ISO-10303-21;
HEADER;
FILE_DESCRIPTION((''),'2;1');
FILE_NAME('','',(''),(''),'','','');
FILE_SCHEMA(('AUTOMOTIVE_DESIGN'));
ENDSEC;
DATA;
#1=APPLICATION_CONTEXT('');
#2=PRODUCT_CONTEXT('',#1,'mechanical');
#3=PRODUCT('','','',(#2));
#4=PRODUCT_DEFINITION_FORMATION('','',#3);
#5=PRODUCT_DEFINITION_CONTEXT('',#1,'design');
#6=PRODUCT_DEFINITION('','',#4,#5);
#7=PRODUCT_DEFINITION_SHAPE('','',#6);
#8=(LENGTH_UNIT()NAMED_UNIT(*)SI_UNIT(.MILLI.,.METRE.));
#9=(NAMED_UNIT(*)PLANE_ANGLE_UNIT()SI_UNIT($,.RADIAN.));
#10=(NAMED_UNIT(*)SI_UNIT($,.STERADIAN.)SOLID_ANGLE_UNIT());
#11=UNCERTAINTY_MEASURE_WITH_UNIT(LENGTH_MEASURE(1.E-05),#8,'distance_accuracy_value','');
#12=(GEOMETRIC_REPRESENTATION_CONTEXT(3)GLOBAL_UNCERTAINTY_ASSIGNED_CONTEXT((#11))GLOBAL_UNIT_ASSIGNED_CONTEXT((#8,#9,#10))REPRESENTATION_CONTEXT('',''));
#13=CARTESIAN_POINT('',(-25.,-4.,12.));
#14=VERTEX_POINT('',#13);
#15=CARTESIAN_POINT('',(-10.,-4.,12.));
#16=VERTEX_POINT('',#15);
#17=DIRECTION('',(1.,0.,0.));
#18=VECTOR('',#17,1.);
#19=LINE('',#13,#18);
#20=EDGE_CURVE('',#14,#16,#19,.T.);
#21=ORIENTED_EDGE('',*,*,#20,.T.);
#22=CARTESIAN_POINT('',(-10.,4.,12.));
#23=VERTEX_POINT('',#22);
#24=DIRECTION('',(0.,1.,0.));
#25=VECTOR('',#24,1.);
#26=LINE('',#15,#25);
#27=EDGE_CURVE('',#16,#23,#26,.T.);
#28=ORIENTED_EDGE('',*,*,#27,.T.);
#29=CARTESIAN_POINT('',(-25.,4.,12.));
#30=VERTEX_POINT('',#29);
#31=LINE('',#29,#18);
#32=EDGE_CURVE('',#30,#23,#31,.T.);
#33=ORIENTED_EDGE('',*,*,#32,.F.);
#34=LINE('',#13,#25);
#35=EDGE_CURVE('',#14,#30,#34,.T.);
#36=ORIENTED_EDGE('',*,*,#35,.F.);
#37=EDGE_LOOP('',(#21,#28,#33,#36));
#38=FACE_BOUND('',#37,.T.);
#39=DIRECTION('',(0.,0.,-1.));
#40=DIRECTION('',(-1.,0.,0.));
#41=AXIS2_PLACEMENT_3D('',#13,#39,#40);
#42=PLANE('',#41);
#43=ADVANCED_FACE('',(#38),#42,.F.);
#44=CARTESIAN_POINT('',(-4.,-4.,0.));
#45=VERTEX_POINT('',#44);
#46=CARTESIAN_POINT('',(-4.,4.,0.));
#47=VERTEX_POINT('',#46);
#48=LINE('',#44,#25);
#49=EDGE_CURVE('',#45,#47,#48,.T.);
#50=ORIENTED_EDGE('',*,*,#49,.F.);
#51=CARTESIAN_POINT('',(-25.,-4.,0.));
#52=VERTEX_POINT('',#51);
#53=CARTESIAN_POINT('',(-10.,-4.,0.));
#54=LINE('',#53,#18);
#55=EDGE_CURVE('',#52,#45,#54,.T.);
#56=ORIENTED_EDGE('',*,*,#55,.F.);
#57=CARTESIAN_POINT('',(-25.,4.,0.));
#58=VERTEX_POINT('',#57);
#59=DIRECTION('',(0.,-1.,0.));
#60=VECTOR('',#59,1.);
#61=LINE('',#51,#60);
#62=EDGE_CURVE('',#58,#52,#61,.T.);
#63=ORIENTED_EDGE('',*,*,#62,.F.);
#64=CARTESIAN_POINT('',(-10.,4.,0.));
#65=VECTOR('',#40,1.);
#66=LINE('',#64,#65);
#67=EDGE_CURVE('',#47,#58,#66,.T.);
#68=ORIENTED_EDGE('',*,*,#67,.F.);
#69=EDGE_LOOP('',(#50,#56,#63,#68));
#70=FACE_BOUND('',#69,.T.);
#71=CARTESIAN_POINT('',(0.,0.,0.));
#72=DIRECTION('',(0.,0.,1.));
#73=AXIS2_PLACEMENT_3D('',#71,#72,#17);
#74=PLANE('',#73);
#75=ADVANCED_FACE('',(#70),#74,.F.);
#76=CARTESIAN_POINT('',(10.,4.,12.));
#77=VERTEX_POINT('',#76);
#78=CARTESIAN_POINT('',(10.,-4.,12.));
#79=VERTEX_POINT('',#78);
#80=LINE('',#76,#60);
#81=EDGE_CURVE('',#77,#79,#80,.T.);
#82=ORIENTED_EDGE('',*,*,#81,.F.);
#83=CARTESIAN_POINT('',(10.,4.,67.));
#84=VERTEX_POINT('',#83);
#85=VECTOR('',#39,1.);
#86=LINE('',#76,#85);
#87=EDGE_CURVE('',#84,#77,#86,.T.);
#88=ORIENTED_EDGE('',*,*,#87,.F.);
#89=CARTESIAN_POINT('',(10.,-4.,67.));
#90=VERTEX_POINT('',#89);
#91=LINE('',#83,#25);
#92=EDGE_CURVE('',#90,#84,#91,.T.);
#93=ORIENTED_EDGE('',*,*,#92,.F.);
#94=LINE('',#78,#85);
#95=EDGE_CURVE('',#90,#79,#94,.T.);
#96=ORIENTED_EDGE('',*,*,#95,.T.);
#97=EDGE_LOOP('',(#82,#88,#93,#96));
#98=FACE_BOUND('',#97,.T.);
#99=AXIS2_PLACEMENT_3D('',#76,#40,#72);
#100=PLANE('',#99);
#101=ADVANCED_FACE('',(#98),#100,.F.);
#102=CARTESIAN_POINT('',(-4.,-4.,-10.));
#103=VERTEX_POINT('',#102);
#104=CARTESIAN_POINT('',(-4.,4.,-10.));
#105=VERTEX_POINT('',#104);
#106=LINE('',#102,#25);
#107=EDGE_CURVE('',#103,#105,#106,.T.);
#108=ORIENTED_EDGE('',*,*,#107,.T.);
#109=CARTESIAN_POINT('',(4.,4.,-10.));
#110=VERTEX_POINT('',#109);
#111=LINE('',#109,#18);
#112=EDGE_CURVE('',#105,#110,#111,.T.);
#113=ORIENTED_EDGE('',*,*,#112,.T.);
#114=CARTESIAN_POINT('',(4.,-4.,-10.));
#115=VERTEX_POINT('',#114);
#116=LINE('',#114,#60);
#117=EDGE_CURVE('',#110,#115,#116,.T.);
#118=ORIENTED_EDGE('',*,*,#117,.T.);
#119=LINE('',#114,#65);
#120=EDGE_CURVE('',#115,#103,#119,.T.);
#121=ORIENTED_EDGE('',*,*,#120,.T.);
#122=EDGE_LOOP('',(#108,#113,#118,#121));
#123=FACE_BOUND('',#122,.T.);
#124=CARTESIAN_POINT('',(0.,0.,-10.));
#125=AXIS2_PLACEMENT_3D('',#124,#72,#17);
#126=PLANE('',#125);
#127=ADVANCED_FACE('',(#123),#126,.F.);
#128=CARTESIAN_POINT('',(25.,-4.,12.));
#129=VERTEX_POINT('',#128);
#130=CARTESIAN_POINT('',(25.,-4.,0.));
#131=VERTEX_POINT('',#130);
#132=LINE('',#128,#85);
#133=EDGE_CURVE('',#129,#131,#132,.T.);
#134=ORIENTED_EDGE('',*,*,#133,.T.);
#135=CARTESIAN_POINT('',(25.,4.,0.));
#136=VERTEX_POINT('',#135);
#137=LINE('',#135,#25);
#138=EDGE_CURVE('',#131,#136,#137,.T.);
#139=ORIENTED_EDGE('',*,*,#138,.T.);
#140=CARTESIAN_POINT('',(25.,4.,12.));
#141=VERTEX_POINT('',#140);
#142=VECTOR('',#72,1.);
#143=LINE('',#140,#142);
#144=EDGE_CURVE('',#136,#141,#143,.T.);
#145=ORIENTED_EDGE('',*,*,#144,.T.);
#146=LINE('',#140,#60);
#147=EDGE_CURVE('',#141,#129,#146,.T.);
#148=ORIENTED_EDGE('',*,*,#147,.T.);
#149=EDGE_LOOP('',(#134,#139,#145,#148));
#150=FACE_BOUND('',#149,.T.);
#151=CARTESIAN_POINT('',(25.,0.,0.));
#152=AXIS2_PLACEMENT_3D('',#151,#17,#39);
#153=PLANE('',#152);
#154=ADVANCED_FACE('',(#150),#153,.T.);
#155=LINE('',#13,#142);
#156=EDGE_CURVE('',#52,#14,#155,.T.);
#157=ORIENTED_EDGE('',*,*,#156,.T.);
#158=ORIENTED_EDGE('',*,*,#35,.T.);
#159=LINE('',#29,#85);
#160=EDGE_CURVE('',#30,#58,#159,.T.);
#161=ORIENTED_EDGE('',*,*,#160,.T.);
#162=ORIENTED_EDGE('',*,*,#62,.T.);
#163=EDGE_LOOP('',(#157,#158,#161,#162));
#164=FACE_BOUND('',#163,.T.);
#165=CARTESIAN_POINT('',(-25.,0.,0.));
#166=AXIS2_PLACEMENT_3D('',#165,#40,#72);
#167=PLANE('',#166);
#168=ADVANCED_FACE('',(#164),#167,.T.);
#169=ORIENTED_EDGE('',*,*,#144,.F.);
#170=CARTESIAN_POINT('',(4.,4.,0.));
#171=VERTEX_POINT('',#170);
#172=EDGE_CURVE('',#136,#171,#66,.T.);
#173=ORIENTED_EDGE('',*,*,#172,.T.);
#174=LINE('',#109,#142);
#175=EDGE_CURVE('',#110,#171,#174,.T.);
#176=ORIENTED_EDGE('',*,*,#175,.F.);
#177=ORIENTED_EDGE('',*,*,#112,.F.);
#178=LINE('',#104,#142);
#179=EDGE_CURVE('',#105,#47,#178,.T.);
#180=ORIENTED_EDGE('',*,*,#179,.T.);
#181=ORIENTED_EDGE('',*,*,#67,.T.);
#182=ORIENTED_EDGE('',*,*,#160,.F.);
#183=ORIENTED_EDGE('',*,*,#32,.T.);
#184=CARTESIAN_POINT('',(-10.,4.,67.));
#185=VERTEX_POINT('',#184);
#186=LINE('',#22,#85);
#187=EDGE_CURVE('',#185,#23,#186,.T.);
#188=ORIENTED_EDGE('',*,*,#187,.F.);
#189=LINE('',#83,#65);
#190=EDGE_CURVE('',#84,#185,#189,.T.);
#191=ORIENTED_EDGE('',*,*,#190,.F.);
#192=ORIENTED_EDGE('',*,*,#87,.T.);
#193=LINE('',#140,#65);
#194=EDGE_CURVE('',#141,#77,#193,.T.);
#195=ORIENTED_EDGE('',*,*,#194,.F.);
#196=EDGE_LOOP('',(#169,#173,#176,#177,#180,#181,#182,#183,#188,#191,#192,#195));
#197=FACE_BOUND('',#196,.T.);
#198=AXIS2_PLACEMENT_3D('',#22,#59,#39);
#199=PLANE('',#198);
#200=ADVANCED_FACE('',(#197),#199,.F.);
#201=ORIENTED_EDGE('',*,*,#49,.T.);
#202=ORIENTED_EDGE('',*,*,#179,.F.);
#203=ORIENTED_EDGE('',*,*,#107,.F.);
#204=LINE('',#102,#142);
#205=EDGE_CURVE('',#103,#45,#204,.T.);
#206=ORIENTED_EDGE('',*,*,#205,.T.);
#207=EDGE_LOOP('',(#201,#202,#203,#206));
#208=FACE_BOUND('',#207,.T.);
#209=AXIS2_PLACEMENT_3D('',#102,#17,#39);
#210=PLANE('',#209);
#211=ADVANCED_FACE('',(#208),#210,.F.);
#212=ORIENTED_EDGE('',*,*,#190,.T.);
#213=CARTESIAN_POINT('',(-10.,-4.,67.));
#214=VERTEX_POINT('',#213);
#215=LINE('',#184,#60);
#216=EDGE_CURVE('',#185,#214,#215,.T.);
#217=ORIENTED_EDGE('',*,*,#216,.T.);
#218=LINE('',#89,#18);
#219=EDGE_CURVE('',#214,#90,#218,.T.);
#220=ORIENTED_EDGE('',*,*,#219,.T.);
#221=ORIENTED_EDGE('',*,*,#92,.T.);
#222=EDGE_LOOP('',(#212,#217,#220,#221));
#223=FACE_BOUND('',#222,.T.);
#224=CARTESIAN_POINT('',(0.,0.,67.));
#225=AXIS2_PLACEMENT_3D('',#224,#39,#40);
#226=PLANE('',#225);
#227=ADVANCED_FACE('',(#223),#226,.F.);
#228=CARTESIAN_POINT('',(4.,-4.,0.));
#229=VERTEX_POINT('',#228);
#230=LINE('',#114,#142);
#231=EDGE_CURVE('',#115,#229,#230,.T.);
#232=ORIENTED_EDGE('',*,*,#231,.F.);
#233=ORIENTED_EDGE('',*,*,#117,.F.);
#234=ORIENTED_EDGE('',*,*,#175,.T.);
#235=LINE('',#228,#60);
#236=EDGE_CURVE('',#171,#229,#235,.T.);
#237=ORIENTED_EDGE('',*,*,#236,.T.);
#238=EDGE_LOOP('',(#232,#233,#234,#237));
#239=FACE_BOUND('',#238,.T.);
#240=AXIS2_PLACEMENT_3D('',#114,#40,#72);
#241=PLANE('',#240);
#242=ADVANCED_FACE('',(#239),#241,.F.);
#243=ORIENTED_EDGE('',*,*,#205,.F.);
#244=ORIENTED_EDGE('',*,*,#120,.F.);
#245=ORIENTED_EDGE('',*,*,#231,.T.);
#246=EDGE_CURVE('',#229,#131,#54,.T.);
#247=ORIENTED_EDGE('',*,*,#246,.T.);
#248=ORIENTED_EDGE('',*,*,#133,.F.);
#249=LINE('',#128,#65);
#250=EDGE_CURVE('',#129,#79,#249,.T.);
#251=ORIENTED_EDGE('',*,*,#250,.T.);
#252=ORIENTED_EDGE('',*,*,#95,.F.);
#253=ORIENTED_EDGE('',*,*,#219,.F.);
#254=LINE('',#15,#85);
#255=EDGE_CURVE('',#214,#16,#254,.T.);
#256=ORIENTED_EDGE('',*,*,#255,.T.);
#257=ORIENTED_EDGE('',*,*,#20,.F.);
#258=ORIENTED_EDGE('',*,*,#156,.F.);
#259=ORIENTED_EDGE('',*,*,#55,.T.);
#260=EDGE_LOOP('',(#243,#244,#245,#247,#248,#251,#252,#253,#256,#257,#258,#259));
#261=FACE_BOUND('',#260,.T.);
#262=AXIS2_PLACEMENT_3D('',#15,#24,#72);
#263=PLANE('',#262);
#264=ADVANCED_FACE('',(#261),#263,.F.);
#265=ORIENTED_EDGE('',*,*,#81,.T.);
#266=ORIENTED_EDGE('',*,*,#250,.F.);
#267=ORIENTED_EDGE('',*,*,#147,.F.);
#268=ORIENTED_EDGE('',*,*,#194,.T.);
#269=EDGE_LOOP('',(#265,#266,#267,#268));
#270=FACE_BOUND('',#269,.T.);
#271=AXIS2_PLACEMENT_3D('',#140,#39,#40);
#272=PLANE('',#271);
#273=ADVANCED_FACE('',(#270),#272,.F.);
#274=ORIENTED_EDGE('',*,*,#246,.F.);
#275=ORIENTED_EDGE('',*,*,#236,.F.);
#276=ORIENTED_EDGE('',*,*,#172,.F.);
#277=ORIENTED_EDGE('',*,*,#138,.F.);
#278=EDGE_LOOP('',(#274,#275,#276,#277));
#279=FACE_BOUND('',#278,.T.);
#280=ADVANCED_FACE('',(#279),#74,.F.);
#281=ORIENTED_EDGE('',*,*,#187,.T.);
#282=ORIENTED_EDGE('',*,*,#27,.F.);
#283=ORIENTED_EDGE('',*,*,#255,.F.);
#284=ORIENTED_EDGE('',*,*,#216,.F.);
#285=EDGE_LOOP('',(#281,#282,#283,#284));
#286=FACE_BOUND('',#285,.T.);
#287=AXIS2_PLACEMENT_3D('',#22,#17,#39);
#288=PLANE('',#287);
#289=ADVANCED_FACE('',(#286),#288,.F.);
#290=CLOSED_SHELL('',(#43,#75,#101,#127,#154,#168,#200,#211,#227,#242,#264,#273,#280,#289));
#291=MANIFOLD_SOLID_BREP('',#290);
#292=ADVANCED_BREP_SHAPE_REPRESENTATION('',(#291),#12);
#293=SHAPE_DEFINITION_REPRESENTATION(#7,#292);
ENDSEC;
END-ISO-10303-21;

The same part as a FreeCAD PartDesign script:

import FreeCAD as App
import Part
import Sketcher

V = App.Vector
Q = App.Units.Quantity

doc = App.newDocument("Part")
body = doc.addObject("PartDesign::Body", "Body")

# Sketch on XY plane
sketch1 = body.newObject("Sketcher::SketchObject", "Sketch")
sketch1.AttachmentSupport = (doc.getObject("XY_Plane"), [""])
sketch1.MapMode = "FlatFace"
sketch1.addGeometry(Part.LineSegment(V(-10, 4, 0), V(-10, -4, 0)), False)
sketch1.addGeometry(Part.LineSegment(V(-10, -4, 0), V(10, -4, 0)), False)
sketch1.addGeometry(Part.LineSegment(V(10, -4, 0), V(10, 4, 0)), False)
sketch1.addGeometry(Part.LineSegment(V(10, 4, 0), V(-10, 4, 0)), False)
sketch1.addConstraint(Sketcher.Constraint("Coincident", 0, 2, 1, 1))
sketch1.addConstraint(Sketcher.Constraint("Coincident", 1, 2, 2, 1))
sketch1.addConstraint(Sketcher.Constraint("Coincident", 2, 2, 3, 1))
sketch1.addConstraint(Sketcher.Constraint("Coincident", 3, 2, 0, 1))
sketch1.addConstraint(Sketcher.Constraint("Vertical", 0))
sketch1.addConstraint(Sketcher.Constraint("Horizontal", 1))
sketch1.addConstraint(Sketcher.Constraint("Vertical", 2))
sketch1.addConstraint(Sketcher.Constraint("Horizontal", 3))
sketch1.addConstraint(Sketcher.Constraint("Symmetric", 0, 2, 2, 2, -1, 1))
sketch1.addConstraint(Sketcher.Constraint("DistanceX", 1, 1, 1, 2, Q("20 mm")))
sketch1.addConstraint(Sketcher.Constraint("DistanceY", 0, 2, 0, 1, Q("8 mm")))
pad1 = body.newObject("PartDesign::Pad", "Pad")
pad1.Profile = sketch1
pad1.Length = 12

# Sketch on XY plane
sketch2 = body.newObject("Sketcher::SketchObject", "Sketch001")
sketch2.AttachmentSupport = (doc.getObject("XY_Plane"), [""])
sketch2.MapMode = "FlatFace"
sketch2.addGeometry(Part.LineSegment(V(4, 4, 0), V(4, -4, 0)), False)
sketch2.addGeometry(Part.LineSegment(V(4, -4, 0), V(-4, -4, 0)), False)
sketch2.addGeometry(Part.LineSegment(V(-4, -4, 0), V(-4, 4, 0)), False)
sketch2.addGeometry(Part.LineSegment(V(-4, 4, 0), V(4, 4, 0)), False)
sketch2.addConstraint(Sketcher.Constraint("Coincident", 0, 2, 1, 1))
sketch2.addConstraint(Sketcher.Constraint("Coincident", 1, 2, 2, 1))
sketch2.addConstraint(Sketcher.Constraint("Coincident", 2, 2, 3, 1))
sketch2.addConstraint(Sketcher.Constraint("Coincident", 3, 2, 0, 1))
sketch2.addConstraint(Sketcher.Constraint("Vertical", 0))
sketch2.addConstraint(Sketcher.Constraint("Horizontal", 1))
sketch2.addConstraint(Sketcher.Constraint("Vertical", 2))
sketch2.addConstraint(Sketcher.Constraint("Horizontal", 3))
sketch2.addConstraint(Sketcher.Constraint("Symmetric", 0, 2, 2, 2, -1, 1))
sketch2.addConstraint(Sketcher.Constraint("Equal", 3, 0))
sketch2.addConstraint(Sketcher.Constraint("DistanceX", 1, 2, 1, 1, Q("8 mm")))
pad2 = body.newObject("PartDesign::Pad", "Pad001")
pad2.Profile = sketch2
pad2.Length = 10
pad2.Reversed = True

# Sketch on XY plane
sketch3 = body.newObject("Sketcher::SketchObject", "Sketch002")
sketch3.AttachmentSupport = (doc.getObject("XY_Plane"), [""])
sketch3.MapMode = "FlatFace"
sketch3.AttachmentOffset = App.Placement(V(0, 0, 12), App.Rotation())
sketch3.addGeometry(Part.LineSegment(V(-10, 4, 0), V(-10, -4, 0)), False)
sketch3.addGeometry(Part.LineSegment(V(-10, -4, 0), V(10, -4, 0)), False)
sketch3.addGeometry(Part.LineSegment(V(10, -4, 0), V(10, 4, 0)), False)
sketch3.addGeometry(Part.LineSegment(V(10, 4, 0), V(-10, 4, 0)), False)
sketch3.addConstraint(Sketcher.Constraint("Coincident", 0, 2, 1, 1))
sketch3.addConstraint(Sketcher.Constraint("Coincident", 1, 2, 2, 1))
sketch3.addConstraint(Sketcher.Constraint("Coincident", 2, 2, 3, 1))
sketch3.addConstraint(Sketcher.Constraint("Coincident", 3, 2, 0, 1))
sketch3.addConstraint(Sketcher.Constraint("Vertical", 0))
sketch3.addConstraint(Sketcher.Constraint("Horizontal", 1))
sketch3.addConstraint(Sketcher.Constraint("Vertical", 2))
sketch3.addConstraint(Sketcher.Constraint("Horizontal", 3))
sketch3.addConstraint(Sketcher.Constraint("Symmetric", 0, 2, 2, 2, -1, 1))
sketch3.addConstraint(Sketcher.Constraint("DistanceX", 1, 1, 1, 2, Q("20 mm")))
sketch3.addConstraint(Sketcher.Constraint("DistanceY", 0, 2, 0, 1, Q("8 mm")))
pad3 = body.newObject("PartDesign::Pad", "Pad002")
pad3.Profile = sketch3
pad3.Length = 55

# Sketch on YZ plane
sketch4 = body.newObject("Sketcher::SketchObject", "Sketch003")
sketch4.AttachmentSupport = (doc.getObject("YZ_Plane"), [""])
sketch4.MapMode = "FlatFace"
sketch4.AttachmentOffset = App.Placement(V(0, 0, 10), App.Rotation())
sketch4.addGeometry(Part.LineSegment(V(4, 12, 0), V(-4, 12, 0)), False)
sketch4.addGeometry(Part.LineSegment(V(-4, 12, 0), V(-4, 0, 0)), False)
sketch4.addGeometry(Part.LineSegment(V(-4, 0, 0), V(4, 0, 0)), False)
sketch4.addGeometry(Part.LineSegment(V(4, 0, 0), V(4, 12, 0)), False)
sketch4.addConstraint(Sketcher.Constraint("Coincident", 0, 2, 1, 1))
sketch4.addConstraint(Sketcher.Constraint("Coincident", 1, 2, 2, 1))
sketch4.addConstraint(Sketcher.Constraint("Coincident", 2, 2, 3, 1))
sketch4.addConstraint(Sketcher.Constraint("Coincident", 3, 2, 0, 1))
sketch4.addConstraint(Sketcher.Constraint("Horizontal", 0))
sketch4.addConstraint(Sketcher.Constraint("Vertical", 1))
sketch4.addConstraint(Sketcher.Constraint("Horizontal", 2))
sketch4.addConstraint(Sketcher.Constraint("Vertical", 3))
sketch4.addConstraint(Sketcher.Constraint("Symmetric", 1, 2, 2, 2, -1, 1))
sketch4.addConstraint(Sketcher.Constraint("DistanceX", 0, 2, 0, 1, Q("8 mm")))
sketch4.addConstraint(Sketcher.Constraint("DistanceY", 1, 2, 1, 1, Q("12 mm")))
pad4 = body.newObject("PartDesign::Pad", "Pad003")
pad4.Profile = sketch4
pad4.Length = 15

# Sketch on YZ plane
sketch5 = body.newObject("Sketcher::SketchObject", "Sketch004")
sketch5.AttachmentSupport = (doc.getObject("YZ_Plane"), [""])
sketch5.MapMode = "FlatFace"
sketch5.AttachmentOffset = App.Placement(V(0, 0, -10), App.Rotation())
sketch5.addGeometry(Part.LineSegment(V(4, 0, 0), V(-4, 0, 0)), False)
sketch5.addGeometry(Part.LineSegment(V(-4, 0, 0), V(-4, 12, 0)), False)
sketch5.addGeometry(Part.LineSegment(V(-4, 12, 0), V(4, 12, 0)), False)
sketch5.addGeometry(Part.LineSegment(V(4, 12, 0), V(4, 0, 0)), False)
sketch5.addConstraint(Sketcher.Constraint("Coincident", 0, 2, 1, 1))
sketch5.addConstraint(Sketcher.Constraint("Coincident", 1, 2, 2, 1))
sketch5.addConstraint(Sketcher.Constraint("Coincident", 2, 2, 3, 1))
sketch5.addConstraint(Sketcher.Constraint("Coincident", 3, 2, 0, 1))
sketch5.addConstraint(Sketcher.Constraint("Horizontal", 0))
sketch5.addConstraint(Sketcher.Constraint("Vertical", 1))
sketch5.addConstraint(Sketcher.Constraint("Horizontal", 2))
sketch5.addConstraint(Sketcher.Constraint("Vertical", 3))
sketch5.addConstraint(Sketcher.Constraint("Symmetric", 0, 2, 3, 2, -1, 1))
sketch5.addConstraint(Sketcher.Constraint("DistanceX", 0, 2, 0, 1, Q("8 mm")))
sketch5.addConstraint(Sketcher.Constraint("DistanceY", 1, 1, 1, 2, Q("12 mm")))
pad5 = body.newObject("PartDesign::Pad", "Pad004")
pad5.Profile = sketch5
pad5.Length = 15
pad5.Reversed = True

doc.recompute()
